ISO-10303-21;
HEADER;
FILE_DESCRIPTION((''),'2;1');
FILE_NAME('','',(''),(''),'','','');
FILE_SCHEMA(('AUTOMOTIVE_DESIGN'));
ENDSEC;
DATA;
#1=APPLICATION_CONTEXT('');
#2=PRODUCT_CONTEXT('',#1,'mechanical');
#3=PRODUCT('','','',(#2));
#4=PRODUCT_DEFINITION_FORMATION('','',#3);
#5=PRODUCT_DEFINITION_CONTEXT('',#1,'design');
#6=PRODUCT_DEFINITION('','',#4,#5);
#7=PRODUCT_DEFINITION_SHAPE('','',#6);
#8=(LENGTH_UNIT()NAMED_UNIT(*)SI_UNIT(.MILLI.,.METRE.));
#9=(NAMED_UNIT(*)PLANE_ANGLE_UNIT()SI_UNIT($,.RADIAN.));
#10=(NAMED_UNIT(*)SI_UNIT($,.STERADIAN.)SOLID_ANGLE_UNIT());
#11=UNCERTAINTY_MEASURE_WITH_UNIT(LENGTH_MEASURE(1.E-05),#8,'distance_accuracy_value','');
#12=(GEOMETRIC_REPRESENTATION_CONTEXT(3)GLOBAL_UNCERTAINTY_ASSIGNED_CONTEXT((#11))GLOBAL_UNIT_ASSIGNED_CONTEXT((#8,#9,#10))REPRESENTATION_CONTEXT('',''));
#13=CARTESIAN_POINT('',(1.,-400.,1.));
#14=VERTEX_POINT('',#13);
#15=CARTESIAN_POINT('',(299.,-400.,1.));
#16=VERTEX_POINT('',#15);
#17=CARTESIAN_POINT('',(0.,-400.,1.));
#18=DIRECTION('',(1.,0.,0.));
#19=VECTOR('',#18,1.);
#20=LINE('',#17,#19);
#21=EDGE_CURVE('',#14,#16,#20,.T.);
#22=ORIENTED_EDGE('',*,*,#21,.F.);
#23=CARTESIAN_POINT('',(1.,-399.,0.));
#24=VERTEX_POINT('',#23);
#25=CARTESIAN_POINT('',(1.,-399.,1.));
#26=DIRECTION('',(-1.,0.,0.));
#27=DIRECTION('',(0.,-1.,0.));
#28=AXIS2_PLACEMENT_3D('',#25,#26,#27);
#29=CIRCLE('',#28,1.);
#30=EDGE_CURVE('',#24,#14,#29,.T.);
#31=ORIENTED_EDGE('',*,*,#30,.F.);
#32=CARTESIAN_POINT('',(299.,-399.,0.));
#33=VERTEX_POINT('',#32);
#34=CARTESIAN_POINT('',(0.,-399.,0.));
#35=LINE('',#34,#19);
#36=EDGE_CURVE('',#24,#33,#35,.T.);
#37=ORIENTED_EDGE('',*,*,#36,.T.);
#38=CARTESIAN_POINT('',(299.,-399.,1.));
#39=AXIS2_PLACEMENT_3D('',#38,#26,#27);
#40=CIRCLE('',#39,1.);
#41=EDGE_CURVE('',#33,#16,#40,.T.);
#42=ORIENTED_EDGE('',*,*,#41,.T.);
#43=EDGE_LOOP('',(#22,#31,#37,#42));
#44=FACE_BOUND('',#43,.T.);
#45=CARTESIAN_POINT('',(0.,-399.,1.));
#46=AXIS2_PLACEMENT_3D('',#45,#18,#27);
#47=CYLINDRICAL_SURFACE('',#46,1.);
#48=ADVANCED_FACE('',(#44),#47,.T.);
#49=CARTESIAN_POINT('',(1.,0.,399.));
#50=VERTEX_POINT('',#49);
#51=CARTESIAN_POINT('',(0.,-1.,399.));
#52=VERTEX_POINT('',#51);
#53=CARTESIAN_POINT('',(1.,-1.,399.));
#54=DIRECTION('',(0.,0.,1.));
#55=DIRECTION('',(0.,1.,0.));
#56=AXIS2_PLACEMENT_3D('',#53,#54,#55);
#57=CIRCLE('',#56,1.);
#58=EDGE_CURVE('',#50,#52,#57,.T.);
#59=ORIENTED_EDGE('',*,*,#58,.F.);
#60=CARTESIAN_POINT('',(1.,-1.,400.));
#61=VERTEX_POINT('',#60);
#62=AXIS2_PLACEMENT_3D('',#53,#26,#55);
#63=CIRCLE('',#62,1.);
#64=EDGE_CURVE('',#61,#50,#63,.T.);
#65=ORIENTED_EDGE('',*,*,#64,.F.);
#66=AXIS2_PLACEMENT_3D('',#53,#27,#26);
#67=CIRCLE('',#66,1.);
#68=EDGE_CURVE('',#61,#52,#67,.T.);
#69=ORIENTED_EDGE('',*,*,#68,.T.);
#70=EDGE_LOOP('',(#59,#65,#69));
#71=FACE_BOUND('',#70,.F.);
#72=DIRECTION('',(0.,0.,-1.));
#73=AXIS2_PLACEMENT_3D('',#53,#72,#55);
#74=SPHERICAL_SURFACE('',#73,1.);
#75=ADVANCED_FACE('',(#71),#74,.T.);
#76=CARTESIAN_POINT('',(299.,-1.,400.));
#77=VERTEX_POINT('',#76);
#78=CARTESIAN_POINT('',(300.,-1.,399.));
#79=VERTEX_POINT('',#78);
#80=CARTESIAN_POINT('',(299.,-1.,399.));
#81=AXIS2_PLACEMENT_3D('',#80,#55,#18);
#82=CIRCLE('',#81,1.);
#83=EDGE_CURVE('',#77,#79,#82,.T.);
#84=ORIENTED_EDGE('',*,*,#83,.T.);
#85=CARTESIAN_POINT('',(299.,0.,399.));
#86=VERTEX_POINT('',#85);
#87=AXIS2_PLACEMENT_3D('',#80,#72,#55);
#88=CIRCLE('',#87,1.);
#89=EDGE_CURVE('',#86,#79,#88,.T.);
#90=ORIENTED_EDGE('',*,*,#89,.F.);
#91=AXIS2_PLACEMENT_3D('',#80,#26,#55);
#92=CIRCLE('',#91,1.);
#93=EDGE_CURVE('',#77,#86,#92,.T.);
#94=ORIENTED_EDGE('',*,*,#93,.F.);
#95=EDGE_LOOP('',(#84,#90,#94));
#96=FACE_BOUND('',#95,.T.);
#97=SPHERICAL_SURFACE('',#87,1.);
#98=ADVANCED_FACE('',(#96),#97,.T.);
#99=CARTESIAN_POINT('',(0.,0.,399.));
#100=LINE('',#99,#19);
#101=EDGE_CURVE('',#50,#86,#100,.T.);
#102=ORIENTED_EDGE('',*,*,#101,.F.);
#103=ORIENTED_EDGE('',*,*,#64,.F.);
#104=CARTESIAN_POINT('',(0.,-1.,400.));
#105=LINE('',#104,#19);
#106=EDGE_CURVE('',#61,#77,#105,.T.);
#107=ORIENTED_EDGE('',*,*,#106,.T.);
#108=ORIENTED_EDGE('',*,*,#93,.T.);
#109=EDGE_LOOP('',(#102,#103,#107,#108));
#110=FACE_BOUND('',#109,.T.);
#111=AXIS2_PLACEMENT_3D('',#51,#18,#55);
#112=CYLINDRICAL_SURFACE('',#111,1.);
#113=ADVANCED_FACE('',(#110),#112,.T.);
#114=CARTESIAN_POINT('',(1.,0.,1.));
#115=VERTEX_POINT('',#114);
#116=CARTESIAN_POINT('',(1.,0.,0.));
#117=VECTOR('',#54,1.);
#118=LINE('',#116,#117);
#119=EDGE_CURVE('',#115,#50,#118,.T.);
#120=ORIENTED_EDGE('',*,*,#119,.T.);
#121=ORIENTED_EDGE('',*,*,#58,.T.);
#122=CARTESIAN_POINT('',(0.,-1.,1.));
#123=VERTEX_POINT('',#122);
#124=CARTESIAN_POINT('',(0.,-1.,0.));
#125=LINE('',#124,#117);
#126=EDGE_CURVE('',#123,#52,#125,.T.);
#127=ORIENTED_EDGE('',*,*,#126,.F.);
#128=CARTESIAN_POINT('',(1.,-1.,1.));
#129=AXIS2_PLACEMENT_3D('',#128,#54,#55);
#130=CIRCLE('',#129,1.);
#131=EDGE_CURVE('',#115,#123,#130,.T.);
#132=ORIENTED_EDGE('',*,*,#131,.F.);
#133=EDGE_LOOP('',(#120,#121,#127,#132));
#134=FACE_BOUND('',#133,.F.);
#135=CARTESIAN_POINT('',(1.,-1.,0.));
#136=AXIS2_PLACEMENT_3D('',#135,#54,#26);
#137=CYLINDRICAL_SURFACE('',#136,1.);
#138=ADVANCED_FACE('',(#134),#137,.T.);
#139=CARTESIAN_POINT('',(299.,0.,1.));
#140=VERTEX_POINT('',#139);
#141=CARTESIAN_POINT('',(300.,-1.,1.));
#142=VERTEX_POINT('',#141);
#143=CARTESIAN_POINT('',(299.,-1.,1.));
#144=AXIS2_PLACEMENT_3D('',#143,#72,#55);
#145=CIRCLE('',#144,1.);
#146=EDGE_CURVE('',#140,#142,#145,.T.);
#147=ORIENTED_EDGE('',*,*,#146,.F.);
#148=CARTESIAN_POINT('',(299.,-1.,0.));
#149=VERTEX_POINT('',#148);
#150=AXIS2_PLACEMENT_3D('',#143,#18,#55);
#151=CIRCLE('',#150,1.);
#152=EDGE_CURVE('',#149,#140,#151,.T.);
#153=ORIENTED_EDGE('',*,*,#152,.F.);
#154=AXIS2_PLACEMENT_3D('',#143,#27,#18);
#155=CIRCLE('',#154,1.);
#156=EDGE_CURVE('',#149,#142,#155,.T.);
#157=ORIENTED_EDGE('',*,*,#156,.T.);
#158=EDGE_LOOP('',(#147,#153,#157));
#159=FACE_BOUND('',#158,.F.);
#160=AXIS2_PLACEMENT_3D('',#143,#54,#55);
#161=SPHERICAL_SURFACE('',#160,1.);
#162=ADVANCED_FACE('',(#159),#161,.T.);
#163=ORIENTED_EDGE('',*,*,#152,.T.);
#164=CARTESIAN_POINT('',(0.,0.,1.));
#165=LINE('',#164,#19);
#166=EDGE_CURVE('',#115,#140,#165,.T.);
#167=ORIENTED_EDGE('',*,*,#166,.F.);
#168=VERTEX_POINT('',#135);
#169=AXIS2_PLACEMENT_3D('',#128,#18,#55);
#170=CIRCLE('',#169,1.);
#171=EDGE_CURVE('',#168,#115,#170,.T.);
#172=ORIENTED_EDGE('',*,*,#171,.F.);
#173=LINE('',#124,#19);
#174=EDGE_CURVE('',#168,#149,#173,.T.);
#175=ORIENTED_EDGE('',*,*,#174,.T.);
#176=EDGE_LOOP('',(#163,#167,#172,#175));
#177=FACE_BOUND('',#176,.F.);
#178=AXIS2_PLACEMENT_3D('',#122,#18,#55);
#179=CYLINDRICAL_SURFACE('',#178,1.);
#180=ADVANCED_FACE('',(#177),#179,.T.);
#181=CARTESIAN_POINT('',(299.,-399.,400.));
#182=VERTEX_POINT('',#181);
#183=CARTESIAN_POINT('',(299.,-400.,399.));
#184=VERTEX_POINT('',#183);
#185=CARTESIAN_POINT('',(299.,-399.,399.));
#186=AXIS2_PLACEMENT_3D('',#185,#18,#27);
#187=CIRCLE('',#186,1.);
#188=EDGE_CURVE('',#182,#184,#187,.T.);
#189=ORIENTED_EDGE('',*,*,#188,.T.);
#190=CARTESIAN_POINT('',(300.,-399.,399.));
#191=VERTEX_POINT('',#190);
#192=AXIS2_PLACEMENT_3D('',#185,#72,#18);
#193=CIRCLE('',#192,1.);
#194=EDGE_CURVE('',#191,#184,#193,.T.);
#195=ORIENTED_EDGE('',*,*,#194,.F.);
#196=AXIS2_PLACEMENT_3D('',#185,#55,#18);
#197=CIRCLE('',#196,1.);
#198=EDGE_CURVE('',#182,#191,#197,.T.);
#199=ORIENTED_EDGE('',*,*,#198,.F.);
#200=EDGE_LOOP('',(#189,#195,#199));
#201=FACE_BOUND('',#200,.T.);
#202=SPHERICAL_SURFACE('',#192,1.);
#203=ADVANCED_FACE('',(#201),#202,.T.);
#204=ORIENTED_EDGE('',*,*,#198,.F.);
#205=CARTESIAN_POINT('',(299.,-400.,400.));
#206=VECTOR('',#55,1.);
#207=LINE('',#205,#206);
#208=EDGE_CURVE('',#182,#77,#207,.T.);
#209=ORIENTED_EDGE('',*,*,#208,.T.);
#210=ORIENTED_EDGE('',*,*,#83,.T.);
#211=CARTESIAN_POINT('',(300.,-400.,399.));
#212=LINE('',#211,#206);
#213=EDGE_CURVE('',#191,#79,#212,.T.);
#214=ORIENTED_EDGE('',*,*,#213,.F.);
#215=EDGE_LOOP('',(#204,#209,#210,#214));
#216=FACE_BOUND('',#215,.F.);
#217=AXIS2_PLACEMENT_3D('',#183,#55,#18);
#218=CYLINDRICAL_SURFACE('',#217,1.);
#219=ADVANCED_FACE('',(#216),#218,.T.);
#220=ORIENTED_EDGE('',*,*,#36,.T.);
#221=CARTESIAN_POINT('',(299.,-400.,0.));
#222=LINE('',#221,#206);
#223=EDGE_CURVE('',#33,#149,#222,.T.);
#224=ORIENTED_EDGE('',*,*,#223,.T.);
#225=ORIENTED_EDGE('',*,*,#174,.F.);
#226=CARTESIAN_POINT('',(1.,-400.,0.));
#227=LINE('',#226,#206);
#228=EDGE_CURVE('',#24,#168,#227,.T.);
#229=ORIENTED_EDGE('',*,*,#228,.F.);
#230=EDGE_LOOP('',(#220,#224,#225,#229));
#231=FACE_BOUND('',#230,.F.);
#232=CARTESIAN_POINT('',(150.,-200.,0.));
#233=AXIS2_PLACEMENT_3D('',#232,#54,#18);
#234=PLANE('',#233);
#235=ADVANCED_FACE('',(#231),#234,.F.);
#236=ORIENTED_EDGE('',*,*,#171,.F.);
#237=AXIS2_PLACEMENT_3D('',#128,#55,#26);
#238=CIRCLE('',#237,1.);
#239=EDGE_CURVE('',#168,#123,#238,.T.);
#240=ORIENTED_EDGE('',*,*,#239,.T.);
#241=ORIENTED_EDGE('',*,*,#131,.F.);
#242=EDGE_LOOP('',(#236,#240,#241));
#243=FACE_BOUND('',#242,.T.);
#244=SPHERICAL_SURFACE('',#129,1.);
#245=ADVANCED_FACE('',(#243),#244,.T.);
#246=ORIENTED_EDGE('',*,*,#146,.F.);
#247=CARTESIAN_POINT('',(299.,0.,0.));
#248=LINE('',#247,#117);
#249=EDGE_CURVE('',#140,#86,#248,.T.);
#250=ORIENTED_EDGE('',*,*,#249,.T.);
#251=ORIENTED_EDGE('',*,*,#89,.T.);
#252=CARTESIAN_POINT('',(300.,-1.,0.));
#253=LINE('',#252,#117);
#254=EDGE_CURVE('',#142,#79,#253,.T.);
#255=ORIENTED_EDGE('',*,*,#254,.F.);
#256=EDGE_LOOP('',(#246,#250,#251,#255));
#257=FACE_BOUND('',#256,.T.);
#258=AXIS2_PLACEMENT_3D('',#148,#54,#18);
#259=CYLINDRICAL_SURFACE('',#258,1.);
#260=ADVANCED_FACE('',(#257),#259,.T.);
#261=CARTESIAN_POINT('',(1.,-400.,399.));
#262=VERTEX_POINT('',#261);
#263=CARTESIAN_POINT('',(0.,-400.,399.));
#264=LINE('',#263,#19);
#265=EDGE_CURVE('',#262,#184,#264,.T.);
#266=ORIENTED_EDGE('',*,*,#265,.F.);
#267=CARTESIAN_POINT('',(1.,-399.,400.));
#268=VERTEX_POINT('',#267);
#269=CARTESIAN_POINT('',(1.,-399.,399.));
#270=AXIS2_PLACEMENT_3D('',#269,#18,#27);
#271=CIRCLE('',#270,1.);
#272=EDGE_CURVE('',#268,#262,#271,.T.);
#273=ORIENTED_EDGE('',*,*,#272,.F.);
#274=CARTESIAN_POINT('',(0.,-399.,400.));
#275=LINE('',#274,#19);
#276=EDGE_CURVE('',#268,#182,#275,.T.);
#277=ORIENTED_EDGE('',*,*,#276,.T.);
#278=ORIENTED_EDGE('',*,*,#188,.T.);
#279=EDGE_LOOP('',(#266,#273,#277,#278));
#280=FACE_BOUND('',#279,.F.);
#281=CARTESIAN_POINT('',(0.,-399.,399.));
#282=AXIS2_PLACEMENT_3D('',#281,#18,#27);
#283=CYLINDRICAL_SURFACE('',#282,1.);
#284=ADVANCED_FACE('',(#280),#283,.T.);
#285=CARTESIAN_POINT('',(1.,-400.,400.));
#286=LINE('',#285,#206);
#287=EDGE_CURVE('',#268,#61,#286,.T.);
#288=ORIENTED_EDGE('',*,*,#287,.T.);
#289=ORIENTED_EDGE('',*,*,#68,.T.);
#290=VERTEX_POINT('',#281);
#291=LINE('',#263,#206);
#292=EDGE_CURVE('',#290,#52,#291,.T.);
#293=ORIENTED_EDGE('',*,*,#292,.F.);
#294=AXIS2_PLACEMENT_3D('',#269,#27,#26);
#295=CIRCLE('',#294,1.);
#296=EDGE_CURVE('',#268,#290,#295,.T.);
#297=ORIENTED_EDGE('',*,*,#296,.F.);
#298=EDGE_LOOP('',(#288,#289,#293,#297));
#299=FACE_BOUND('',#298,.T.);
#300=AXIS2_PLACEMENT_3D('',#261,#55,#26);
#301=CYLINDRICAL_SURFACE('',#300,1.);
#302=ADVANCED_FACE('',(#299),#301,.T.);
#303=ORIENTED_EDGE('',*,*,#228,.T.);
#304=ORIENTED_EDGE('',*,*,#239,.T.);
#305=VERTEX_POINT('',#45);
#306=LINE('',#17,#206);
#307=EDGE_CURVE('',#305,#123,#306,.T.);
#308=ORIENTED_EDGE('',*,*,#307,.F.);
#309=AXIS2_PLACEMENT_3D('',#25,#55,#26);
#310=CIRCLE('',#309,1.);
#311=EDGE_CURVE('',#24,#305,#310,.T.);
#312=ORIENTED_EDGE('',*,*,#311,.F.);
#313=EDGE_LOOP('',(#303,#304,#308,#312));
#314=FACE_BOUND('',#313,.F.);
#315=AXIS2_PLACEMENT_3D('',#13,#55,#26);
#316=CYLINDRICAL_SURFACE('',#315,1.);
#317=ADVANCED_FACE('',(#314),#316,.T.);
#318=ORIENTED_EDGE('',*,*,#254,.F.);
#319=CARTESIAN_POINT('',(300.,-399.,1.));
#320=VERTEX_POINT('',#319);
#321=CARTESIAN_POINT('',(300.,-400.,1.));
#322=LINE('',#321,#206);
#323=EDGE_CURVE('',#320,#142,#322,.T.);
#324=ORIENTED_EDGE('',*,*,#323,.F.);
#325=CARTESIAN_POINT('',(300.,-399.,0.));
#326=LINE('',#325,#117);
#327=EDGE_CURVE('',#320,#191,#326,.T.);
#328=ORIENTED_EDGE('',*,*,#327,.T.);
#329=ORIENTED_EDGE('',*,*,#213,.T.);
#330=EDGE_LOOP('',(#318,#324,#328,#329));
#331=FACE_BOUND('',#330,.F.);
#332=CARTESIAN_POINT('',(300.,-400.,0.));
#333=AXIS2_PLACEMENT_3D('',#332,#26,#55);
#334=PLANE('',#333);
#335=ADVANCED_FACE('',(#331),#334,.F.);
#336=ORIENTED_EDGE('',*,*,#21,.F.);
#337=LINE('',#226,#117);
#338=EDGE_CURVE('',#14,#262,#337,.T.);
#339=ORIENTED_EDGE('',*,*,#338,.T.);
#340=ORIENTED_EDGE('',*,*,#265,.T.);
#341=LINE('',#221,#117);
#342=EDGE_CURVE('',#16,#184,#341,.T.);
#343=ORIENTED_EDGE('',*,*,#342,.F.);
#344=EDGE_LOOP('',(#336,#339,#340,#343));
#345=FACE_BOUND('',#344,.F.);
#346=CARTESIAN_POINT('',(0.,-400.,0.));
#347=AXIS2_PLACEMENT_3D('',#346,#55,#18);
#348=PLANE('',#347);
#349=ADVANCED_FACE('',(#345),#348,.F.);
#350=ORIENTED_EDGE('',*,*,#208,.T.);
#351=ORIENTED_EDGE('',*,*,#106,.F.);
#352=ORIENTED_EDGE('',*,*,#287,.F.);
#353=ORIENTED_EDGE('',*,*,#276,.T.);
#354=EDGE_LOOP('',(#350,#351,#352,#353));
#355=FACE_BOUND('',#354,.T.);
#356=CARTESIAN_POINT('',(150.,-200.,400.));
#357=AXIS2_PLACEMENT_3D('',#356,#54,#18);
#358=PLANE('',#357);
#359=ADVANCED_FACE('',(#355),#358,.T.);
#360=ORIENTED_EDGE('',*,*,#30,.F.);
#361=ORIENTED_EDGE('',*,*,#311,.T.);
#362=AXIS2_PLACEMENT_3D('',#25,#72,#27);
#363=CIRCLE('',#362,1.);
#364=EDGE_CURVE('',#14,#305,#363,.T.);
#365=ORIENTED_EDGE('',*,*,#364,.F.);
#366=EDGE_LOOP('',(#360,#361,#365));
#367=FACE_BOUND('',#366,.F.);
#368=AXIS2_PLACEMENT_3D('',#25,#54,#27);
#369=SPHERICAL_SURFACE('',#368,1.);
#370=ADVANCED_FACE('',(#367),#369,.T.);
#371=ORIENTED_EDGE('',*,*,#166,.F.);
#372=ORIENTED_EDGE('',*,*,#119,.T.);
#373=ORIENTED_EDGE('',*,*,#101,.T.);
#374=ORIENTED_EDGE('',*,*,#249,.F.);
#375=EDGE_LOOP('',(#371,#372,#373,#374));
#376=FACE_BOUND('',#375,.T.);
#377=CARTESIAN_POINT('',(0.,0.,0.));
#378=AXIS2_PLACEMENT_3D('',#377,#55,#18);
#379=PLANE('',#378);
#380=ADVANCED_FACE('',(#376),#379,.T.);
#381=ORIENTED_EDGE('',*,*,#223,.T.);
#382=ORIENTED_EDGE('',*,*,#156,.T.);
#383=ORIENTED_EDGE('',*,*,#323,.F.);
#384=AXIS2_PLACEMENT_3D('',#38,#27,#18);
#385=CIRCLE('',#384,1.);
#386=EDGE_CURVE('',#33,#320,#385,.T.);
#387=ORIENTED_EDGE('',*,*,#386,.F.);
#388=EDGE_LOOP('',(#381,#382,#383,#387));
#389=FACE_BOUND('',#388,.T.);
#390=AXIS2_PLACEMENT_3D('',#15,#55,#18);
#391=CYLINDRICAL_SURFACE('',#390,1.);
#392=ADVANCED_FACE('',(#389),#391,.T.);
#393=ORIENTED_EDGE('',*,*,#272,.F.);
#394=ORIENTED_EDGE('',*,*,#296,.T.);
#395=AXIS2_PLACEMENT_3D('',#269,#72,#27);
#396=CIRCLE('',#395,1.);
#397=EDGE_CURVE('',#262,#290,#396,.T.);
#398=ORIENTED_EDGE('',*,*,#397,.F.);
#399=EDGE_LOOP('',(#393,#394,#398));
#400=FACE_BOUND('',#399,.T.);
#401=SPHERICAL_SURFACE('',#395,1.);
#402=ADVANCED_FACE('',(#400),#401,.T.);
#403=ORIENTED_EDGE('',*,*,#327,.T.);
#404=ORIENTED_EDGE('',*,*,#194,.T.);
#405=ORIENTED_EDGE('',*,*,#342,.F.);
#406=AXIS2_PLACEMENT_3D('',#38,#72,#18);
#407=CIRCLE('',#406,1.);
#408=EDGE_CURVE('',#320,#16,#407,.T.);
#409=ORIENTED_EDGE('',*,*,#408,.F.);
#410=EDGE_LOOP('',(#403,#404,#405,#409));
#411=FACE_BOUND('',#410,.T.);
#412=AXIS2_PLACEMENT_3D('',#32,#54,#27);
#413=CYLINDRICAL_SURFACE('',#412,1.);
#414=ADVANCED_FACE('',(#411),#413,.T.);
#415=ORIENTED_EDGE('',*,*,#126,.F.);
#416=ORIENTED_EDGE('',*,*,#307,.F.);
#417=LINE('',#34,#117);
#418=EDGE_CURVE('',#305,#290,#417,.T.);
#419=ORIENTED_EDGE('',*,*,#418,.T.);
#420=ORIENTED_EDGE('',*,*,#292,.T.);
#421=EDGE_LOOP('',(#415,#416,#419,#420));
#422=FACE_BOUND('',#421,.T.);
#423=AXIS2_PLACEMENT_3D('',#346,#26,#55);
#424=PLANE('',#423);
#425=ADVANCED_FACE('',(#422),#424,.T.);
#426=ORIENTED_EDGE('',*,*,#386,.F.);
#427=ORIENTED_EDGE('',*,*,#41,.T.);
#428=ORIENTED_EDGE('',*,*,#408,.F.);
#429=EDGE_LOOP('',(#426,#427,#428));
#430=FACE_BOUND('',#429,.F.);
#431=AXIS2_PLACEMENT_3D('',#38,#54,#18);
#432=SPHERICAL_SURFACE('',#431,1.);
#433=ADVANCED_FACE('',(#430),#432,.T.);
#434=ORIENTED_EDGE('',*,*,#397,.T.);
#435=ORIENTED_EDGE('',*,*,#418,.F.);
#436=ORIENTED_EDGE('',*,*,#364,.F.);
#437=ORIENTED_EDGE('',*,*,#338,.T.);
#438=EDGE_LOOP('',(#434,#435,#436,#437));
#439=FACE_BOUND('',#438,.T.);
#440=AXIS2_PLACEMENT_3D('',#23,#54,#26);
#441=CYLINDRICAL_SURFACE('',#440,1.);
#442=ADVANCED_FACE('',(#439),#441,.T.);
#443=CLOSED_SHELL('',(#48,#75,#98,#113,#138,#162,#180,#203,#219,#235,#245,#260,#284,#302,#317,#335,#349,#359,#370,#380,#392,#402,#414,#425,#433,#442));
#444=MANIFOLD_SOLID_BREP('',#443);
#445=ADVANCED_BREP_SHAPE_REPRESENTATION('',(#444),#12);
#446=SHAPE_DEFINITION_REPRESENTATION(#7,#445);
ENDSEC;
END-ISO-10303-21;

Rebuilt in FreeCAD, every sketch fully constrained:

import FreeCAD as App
import Part
import Sketcher

V = App.Vector


def add_polygon(sketch, points):
    """Adds a closed chain of lines whose ends are joined by coincident constraints."""
    first, n = sketch.GeometryCount, len(points)
    for a, b in zip(points, points[1:] + points[:1]):
        sketch.addGeometry(Part.LineSegment(App.Vector(*a, 0), App.Vector(*b, 0)), False)
    for i in range(n):
        sketch.addConstraint(Sketcher.Constraint("Coincident", first + i, 2, first + (i + 1) % n, 1))

doc = App.newDocument("Part")
body = doc.addObject("PartDesign::Body", "Body")

# Sketch on XY plane
sketch1 = body.newObject("Sketcher::SketchObject", "Sketch")
sketch1.AttachmentSupport = (doc.getObject("XY_Plane"), [""])
sketch1.MapMode = "FlatFace"
add_polygon(sketch1, [(0, 0), (0, -400), (300, -400), (300, 0)])  # lines 0-3
sketch1.addConstraint(Sketcher.Constraint("Vertical", 0))
sketch1.addConstraint(Sketcher.Constraint("Horizontal", 1))
sketch1.addConstraint(Sketcher.Constraint("Vertical", 2))
sketch1.addConstraint(Sketcher.Constraint("Horizontal", 3))
sketch1.addConstraint(Sketcher.Constraint("Coincident", 3, 2, -1, 1))
sketch1.addConstraint(Sketcher.Constraint("DistanceX", 1, 1, 1, 2, 300.0))
sketch1.addConstraint(Sketcher.Constraint("DistanceY", 0, 2, 0, 1, 400.0))
pad1 = body.newObject("PartDesign::Pad", "Pad")
pad1.Profile = sketch1
pad1.Length = 400
doc.recompute()

fillet = body.newObject("PartDesign::Fillet", "Fillet")
fillet.Base = (pad1, ["Edge1"])
fillet.UseAllEdges = True
fillet.Radius = 1

doc.recompute()
